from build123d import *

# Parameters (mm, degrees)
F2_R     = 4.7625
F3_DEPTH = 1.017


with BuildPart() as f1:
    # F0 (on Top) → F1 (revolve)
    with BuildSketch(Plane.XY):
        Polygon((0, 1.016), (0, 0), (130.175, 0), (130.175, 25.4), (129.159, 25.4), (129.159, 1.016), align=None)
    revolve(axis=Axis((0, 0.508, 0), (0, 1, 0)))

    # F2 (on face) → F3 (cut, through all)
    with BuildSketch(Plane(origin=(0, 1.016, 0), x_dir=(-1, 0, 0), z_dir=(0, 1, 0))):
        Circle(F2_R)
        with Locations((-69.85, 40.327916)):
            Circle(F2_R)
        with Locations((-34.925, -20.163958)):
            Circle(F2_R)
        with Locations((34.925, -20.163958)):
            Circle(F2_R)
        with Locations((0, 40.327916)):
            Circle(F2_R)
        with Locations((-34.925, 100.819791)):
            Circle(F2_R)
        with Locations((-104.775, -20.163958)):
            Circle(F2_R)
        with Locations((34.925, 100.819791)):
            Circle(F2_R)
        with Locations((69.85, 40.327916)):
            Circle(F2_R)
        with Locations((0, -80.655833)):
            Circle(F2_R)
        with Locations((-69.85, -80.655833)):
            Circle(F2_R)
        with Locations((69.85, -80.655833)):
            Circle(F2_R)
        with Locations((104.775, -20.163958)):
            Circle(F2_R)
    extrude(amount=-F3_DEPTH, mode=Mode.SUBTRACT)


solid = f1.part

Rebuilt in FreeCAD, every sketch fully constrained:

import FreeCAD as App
import Part
import Sketcher

V = App.Vector
Q = App.Units.Quantity

doc = App.newDocument("Part")
body = doc.addObject("PartDesign::Body", "Body")

# Sketch on XY plane
sketch1 = body.newObject("Sketcher::SketchObject", "Sketch")
sketch1.AttachmentSupport = (doc.getObject("XY_Plane"), [""])
sketch1.MapMode = "FlatFace"
sketch1.addGeometry([
    Part.LineSegment(V(0, 1, 0), V(0, 0, 0)),  # 0
    Part.LineSegment(V(0, 0, 0), V(130.2, 0, 0)),  # 1
    Part.LineSegment(V(130.2, 0, 0), V(130.2, 25.4, 0)),  # 2
    Part.LineSegment(V(130.2, 25.4, 0), V(129.2, 25.4, 0)),  # 3
    Part.LineSegment(V(129.2, 25.4, 0), V(129.2, 1, 0)),  # 4
    Part.LineSegment(V(129.2, 1, 0), V(0, 1, 0)),  # 5
], False)
sketch1.addConstraint([
    Sketcher.Constraint("Coincident", 0, 2, 1, 1),
    Sketcher.Constraint("Coincident", 1, 2, 2, 1),
    Sketcher.Constraint("Coincident", 2, 2, 3, 1),
    Sketcher.Constraint("Coincident", 3, 2, 4, 1),
    Sketcher.Constraint("Coincident", 4, 2, 5, 1),
    Sketcher.Constraint("Coincident", 5, 2, 0, 1),
    Sketcher.Constraint("Vertical", 0),
    Sketcher.Constraint("Horizontal", 1),
    Sketcher.Constraint("Vertical", 2),
    Sketcher.Constraint("Horizontal", 3),
    Sketcher.Constraint("Vertical", 4),
    Sketcher.Constraint("Horizontal", 5),
    Sketcher.Constraint("Coincident", 0, 2, -1, 1),
    Sketcher.Constraint("Equal", 3, 0),
    Sketcher.Constraint("DistanceY", 2, 1, 2, 2, Q("1 in")),
    Sketcher.Constraint("DistanceX", 3, 2, 3, 1, Q("0.04 in")),
    Sketcher.Constraint("DistanceX", 1, 1, 1, 2, Q("5.125 in")),
])
revolution = body.newObject("PartDesign::Revolution", "Revolution")
revolution.Profile = sketch1
revolution.ReferenceAxis = (sketch1, ["V_Axis"])
revolution.Angle = 360

# Sketch on XZ plane
sketch2 = body.newObject("Sketcher::SketchObject", "Sketch001")
sketch2.AttachmentSupport = (doc.getObject("XZ_Plane"), [""])
sketch2.MapMode = "FlatFace"
sketch2.AttachmentOffset = App.Placement(V(0, 0, -0.04 * 25.4), App.Rotation())
sketch2.addGeometry([
    Part.Circle(V(0, 0, 0), V(0, 0, 1), 4.8),  # 0
    Part.Circle(V(69.8, 40.3, 0), V(0, 0, 1), 4.8),  # 1
    Part.Circle(V(34.9, -20.2, 0), V(0, 0, 1), 4.8),  # 2
    Part.Circle(V(-34.9, -20.2, 0), V(0, 0, 1), 4.8),  # 3
    Part.Circle(V(0, 40.3, 0), V(0, 0, 1), 4.8),  # 4
    Part.Circle(V(34.9, 100.8, 0), V(0, 0, 1), 4.8),  # 5
    Part.Circle(V(104.8, -20.2, 0), V(0, 0, 1), 4.8),  # 6
    Part.Circle(V(-34.9, 100.8, 0), V(0, 0, 1), 4.8),  # 7
    Part.Circle(V(-69.8, 40.3, 0), V(0, 0, 1), 4.8),  # 8
    Part.Circle(V(0, -80.7, 0), V(0, 0, 1), 4.8),  # 9
    Part.Circle(V(69.8, -80.7, 0), V(0, 0, 1), 4.8),  # 10
    Part.Circle(V(-69.8, -80.7, 0), V(0, 0, 1), 4.8),  # 11
    Part.Circle(V(-104.8, -20.2, 0), V(0, 0, 1), 4.8),  # 12
], False)
sketch2.addConstraint([
    Sketcher.Constraint("Coincident", 0, 3, -1, 1),
    Sketcher.Constraint("Equal", 0, 1),
    Sketcher.Constraint("Equal", 1, 2),
    Sketcher.Constraint("Equal", 2, 3),
    Sketcher.Constraint("Equal", 3, 4),
    Sketcher.Constraint("Equal", 4, 5),
    Sketcher.Constraint("Equal", 5, 6),
    Sketcher.Constraint("Equal", 6, 7),
    Sketcher.Constraint("Equal", 7, 8),
    Sketcher.Constraint("Equal", 8, 9),
    Sketcher.Constraint("Equal", 9, 10),
    Sketcher.Constraint("Equal", 10, 11),
    Sketcher.Constraint("Equal", 11, 12),
    Sketcher.Constraint("Symmetric", 2, 3, 3, 3, -2),
    Sketcher.Constraint("Symmetric", 5, 3, 7, 3, -2),
    Sketcher.Constraint("Symmetric", 1, 3, 8, 3, -2),
    Sketcher.Constraint("Symmetric", 10, 3, 11, 3, -2),
    Sketcher.Constraint("Symmetric", 6, 3, 12, 3, -2),
    Sketcher.Constraint("PointOnObject", 4, 3, -2),
    Sketcher.Constraint("PointOnObject", 9, 3, -2),
    Sketcher.Constraint("Horizontal", 1, 3, 4, 3),
    Sketcher.Constraint("Horizontal", 3, 3, 6, 3),
    Sketcher.Constraint("Horizontal", 9, 3, 10, 3),
    Sketcher.Constraint("Vertical", 2, 3, 5, 3),
    Sketcher.Constraint("Vertical", 1, 3, 10, 3),
    Sketcher.Constraint("Diameter", 0, Q("0.375 in")),
    Sketcher.Constraint("DistanceX", 3, 3, 6, 3, Q("5.5 in")),
    Sketcher.Constraint("DistanceX", -1, 1, 1, 3, Q("2.75 in")),
    Sketcher.Constraint("DistanceX", 3, 3, 2, 3, Q("2.75 in")),
    Sketcher.Constraint("DistanceY", 2, 3, -1, 1, Q("20.163958 mm")),
    Sketcher.Constraint("DistanceY", -1, 1, 5, 3, Q("100.819791 mm")),
    Sketcher.Constraint("DistanceY", 9, 3, 4, 3, Q("120.983749 mm")),
    Sketcher.Constraint("DistanceY", -1, 1, 1, 3, Q("40.327916 mm")),
])
pocket1 = body.newObject("PartDesign::Pocket", "Pocket")
pocket1.Profile = sketch2
pocket1.Type = "ThroughAll"
pocket1.Reversed = True

doc.recompute()
